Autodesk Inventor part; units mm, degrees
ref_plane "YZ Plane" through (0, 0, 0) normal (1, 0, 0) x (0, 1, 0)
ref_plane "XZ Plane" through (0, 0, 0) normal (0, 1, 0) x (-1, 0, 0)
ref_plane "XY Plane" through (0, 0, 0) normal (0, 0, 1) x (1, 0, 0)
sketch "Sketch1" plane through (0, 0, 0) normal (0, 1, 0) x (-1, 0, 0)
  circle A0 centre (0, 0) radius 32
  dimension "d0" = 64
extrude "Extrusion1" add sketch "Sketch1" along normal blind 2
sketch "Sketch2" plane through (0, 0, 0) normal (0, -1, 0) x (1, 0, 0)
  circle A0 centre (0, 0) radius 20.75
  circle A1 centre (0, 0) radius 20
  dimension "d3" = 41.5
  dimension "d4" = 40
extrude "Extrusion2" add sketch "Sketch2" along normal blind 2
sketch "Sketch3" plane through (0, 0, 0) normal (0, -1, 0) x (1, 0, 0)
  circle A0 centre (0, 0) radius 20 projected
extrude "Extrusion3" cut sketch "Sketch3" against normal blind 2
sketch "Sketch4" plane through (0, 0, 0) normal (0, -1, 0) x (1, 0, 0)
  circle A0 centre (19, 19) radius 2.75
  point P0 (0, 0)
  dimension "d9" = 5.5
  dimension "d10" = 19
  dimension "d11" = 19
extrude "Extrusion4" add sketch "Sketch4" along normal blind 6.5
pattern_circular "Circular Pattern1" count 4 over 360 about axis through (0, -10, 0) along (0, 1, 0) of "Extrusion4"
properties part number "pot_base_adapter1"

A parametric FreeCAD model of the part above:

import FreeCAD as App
import Part
import Sketcher

V = App.Vector
Q = App.Units.Quantity

doc = App.newDocument("Part")
body = doc.addObject("PartDesign::Body", "Body")

sketch1 = body.newObject("Sketcher::SketchObject", "Sketch")
sketch1.AttachmentSupport = (doc.getObject("XZ_Plane"), [""])
sketch1.MapMode = "FlatFace"
sketch1.addGeometry(Part.Circle(V(0, 0, 0), V(0, 0, 1), 32), False)
sketch1.addConstraint([
    Sketcher.Constraint("Coincident", 0, 3, -1, 1),
    Sketcher.Constraint("Diameter", 0, Q("64 mm")),
])
pad1 = body.newObject("PartDesign::Pad", "Pad")
pad1.Profile = sketch1
pad1.Length = 2
pad1.Reversed = True

sketch2 = body.newObject("Sketcher::SketchObject", "Sketch001")
sketch2.AttachmentSupport = (doc.getObject("XZ_Plane"), [""])
sketch2.MapMode = "FlatFace"
sketch2.addGeometry([
    Part.Circle(V(0, 0, 0), V(0, 0, 1), 21),
    Part.Circle(V(0, 0, 0), V(0, 0, 1), 20),
], False)
sketch2.addConstraint([
    Sketcher.Constraint("Coincident", 0, 3, -1, 1),
    Sketcher.Constraint("Coincident", 1, 3, -1, 1),
    Sketcher.Constraint("Diameter", 1, Q("40 mm")),
    Sketcher.Constraint("Diameter", 0, Q("41.5 mm")),
])
pad2 = body.newObject("PartDesign::Pad", "Pad001")
pad2.Profile = sketch2
pad2.Length = 2

sketch3 = body.newObject("Sketcher::SketchObject", "Sketch002")
sketch3.AttachmentSupport = (doc.getObject("XZ_Plane"), [""])
sketch3.MapMode = "FlatFace"
sketch3.addGeometry(Part.Circle(V(0, 0, 0), V(0, 0, 1), 20), False)
sketch3.addConstraint([
    Sketcher.Constraint("Coincident", 0, 3, -1, 1),
    Sketcher.Constraint("Diameter", 0, Q("40 mm")),
])
pocket1 = body.newObject("PartDesign::Pocket", "Pocket")
pocket1.Profile = sketch3
pocket1.Length = 2

sketch4 = body.newObject("Sketcher::SketchObject", "Sketch003")
sketch4.AttachmentSupport = (doc.getObject("XZ_Plane"), [""])
sketch4.MapMode = "FlatFace"
sketch4.addGeometry(Part.Circle(V(19, 19, 0), V(0, 0, 1), 2.8), False)
sketch4.addConstraint([
    Sketcher.Constraint("Diameter", 0, Q("5.5 mm")),
    Sketcher.Constraint("DistanceX", -1, 1, 0, 3, Q("19 mm")),
    Sketcher.Constraint("DistanceY", -1, 1, 0, 3, Q("19 mm")),
])
pad3 = body.newObject("PartDesign::Pad", "Pad002")
pad3.Profile = sketch4
pad3.Length = 6.5
doc.recompute()

polarpattern = body.newObject("PartDesign::PolarPattern", "PolarPattern")
polarpattern.Originals = [pad3]
polarpattern.Axis = (doc.getObject("Y_Axis"), [""])
polarpattern.Angle = 360
polarpattern.Occurrences = 4
body.Tip = polarpattern

doc.recompute()
